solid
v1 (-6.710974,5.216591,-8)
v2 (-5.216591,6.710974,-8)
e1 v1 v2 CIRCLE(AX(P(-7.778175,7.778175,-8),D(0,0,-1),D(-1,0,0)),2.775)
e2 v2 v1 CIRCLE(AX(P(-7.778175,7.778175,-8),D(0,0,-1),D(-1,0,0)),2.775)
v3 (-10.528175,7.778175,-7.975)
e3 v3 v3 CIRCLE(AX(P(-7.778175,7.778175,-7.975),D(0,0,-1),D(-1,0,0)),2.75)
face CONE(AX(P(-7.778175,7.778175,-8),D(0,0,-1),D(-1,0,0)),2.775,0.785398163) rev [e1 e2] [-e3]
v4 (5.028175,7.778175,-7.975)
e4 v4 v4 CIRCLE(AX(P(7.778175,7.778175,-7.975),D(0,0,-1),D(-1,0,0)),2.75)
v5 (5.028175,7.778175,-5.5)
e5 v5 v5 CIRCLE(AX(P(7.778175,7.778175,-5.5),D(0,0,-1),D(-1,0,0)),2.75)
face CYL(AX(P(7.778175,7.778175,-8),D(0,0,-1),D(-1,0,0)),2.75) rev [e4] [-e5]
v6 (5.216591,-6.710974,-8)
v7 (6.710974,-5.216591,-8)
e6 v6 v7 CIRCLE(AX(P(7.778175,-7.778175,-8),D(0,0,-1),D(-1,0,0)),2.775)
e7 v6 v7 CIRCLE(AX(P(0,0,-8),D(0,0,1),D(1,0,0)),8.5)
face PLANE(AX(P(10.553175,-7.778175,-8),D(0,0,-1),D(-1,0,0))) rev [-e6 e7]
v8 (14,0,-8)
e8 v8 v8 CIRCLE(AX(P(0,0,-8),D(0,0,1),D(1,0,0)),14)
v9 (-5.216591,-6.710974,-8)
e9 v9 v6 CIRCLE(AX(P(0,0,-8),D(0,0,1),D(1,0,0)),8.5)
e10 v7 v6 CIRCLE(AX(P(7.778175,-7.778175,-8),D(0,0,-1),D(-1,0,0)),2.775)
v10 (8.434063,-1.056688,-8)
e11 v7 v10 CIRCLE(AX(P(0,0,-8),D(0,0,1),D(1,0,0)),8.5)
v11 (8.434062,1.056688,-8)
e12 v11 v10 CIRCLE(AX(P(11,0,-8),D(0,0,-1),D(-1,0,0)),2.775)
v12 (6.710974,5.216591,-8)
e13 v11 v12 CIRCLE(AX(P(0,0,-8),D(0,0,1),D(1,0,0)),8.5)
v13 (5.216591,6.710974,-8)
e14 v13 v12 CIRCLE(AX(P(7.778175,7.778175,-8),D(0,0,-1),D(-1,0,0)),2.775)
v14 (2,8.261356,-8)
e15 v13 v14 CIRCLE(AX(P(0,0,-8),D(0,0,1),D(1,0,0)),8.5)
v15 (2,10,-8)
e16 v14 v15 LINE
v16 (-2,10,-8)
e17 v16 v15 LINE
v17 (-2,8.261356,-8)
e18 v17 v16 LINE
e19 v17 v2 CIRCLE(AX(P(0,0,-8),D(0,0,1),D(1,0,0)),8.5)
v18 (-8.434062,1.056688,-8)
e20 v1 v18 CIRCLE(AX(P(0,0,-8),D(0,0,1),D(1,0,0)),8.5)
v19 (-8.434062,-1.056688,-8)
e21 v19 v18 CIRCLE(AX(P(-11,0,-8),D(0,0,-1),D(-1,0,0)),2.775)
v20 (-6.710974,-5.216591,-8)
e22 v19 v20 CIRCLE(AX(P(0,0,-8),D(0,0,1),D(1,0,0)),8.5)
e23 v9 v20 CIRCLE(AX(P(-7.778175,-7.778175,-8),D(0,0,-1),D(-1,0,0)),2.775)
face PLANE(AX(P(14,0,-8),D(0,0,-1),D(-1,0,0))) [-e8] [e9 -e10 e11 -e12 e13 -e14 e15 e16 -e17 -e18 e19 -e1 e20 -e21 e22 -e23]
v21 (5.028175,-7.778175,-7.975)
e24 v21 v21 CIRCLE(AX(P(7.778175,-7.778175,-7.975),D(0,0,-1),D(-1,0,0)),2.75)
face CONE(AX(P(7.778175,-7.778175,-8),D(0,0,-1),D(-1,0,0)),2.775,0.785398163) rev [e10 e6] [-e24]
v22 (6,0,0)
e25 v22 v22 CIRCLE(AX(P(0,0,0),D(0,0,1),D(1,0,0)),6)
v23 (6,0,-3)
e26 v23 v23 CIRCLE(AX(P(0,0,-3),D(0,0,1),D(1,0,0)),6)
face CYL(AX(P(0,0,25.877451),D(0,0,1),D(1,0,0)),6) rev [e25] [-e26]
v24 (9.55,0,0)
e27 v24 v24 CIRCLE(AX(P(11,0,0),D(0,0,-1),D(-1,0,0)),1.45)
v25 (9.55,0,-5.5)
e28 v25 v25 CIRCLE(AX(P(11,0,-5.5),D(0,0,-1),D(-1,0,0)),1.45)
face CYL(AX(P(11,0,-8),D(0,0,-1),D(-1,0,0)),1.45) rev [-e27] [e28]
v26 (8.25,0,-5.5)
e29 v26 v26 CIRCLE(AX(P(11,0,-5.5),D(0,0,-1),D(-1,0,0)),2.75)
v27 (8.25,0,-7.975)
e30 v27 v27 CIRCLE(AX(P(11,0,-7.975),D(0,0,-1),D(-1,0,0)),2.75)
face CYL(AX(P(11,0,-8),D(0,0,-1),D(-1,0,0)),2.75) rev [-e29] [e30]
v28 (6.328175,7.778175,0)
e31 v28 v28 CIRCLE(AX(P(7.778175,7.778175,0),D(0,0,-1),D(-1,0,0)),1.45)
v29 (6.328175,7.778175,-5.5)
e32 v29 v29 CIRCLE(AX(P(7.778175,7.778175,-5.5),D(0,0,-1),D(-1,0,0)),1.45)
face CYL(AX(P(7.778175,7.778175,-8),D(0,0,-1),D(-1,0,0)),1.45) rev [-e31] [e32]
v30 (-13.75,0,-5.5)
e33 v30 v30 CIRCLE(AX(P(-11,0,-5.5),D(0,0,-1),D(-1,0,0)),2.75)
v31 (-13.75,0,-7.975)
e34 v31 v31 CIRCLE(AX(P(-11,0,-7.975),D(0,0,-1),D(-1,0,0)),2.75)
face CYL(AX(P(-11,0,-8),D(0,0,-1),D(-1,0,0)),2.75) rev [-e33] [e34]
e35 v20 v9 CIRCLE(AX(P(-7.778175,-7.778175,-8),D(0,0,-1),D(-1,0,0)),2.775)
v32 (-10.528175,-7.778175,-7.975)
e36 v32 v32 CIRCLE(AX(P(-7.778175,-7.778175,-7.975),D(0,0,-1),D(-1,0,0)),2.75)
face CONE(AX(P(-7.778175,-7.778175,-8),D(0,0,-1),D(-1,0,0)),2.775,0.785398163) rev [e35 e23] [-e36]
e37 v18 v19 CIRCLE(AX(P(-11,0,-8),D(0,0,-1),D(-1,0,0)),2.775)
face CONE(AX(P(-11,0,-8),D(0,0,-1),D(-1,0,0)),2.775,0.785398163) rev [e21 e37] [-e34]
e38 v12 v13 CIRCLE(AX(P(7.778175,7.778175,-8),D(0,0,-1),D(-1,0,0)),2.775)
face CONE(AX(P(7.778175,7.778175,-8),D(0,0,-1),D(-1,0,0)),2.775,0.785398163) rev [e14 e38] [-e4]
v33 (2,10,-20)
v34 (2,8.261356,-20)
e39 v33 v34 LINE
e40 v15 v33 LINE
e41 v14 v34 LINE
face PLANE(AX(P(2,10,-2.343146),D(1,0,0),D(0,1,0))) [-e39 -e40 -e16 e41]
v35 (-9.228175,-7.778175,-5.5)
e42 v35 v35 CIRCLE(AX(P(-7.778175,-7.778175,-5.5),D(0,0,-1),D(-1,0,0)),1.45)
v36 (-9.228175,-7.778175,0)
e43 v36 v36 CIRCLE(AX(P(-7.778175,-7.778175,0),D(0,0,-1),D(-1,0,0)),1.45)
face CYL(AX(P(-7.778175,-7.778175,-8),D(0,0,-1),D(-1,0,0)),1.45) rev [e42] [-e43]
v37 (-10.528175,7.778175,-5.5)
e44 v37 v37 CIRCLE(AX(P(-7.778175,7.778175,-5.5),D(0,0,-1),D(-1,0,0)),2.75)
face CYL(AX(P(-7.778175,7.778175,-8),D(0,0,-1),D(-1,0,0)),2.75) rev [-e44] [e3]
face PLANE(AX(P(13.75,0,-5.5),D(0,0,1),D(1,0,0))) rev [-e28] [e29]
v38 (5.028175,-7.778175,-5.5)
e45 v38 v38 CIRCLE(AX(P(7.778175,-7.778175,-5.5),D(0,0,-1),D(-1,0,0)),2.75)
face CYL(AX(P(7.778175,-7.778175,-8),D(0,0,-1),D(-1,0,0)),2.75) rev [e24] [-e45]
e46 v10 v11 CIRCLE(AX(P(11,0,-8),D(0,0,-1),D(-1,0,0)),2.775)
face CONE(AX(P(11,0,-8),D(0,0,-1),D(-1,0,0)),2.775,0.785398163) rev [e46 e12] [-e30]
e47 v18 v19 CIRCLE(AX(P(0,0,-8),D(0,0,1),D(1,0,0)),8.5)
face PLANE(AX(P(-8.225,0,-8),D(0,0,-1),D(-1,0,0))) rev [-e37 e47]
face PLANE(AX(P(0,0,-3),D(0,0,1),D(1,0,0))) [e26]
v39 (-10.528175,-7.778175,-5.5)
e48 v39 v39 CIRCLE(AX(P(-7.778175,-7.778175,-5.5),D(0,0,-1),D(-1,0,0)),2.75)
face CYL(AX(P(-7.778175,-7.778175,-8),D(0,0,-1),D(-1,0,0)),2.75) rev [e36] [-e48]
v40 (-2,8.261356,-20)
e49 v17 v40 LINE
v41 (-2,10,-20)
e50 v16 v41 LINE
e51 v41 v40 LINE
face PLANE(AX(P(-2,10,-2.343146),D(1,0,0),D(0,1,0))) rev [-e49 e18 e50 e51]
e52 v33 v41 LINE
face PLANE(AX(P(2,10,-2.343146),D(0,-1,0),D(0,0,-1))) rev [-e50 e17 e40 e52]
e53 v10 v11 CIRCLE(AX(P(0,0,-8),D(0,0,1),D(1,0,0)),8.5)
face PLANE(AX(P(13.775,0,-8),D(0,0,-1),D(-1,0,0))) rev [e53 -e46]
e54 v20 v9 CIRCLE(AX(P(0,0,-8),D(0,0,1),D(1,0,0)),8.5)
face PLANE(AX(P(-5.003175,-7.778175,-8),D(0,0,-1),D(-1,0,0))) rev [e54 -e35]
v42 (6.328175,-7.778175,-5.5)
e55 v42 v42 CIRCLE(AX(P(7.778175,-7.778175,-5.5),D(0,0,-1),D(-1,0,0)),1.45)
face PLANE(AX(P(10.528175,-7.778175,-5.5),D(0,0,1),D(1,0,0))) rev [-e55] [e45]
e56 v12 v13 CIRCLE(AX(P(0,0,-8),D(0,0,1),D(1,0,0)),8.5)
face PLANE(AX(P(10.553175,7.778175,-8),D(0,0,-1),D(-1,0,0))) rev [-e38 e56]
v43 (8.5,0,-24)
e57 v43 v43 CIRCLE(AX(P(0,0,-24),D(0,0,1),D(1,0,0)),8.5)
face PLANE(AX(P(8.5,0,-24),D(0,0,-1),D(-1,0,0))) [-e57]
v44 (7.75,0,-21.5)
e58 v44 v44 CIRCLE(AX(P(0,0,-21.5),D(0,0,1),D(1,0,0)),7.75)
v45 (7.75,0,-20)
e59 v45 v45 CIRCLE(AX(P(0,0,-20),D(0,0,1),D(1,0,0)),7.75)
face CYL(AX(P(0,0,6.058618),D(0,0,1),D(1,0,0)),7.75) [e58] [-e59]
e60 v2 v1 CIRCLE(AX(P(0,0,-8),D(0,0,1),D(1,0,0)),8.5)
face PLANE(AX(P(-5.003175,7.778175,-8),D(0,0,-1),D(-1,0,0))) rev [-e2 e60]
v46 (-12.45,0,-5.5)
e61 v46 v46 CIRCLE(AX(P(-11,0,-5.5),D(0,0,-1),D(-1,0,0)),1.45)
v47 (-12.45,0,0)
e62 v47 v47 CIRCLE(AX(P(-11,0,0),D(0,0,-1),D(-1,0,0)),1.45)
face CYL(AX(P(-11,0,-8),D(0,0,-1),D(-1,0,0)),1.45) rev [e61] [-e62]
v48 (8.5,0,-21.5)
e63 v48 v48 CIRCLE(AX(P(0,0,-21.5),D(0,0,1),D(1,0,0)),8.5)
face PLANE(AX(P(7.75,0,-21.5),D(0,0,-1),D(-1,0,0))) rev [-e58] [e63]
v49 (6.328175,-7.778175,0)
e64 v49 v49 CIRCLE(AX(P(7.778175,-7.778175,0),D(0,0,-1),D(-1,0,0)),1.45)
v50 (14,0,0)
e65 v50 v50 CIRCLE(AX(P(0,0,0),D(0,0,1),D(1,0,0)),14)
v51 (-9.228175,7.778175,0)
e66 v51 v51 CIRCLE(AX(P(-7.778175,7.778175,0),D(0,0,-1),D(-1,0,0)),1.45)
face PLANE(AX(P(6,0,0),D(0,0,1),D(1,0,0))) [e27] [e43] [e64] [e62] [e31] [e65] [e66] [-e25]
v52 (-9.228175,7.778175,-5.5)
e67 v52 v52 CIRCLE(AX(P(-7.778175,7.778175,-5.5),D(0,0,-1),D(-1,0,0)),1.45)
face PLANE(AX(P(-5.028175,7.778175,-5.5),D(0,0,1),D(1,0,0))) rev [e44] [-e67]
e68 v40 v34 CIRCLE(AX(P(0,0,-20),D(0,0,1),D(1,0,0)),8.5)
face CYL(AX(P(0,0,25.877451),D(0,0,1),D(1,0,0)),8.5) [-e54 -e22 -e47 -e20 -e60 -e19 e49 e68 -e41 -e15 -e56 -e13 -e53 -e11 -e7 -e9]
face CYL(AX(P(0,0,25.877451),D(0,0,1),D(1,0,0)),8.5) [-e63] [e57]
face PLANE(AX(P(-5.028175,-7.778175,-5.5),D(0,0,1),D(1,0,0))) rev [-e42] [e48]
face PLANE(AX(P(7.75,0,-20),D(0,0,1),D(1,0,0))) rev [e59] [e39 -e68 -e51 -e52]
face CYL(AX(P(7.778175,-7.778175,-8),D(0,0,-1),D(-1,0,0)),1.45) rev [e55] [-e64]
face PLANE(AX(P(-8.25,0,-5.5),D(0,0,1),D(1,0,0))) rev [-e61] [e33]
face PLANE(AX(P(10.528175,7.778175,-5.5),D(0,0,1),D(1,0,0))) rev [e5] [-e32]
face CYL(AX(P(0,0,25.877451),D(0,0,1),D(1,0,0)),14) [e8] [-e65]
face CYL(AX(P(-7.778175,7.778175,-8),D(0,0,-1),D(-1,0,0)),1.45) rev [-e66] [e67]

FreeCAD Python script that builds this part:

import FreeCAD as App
import Part
import Sketcher
Q = App.Units.Quantity


def add_polygon(sketch, points):
    """Adds a closed chain of lines whose ends are joined by coincident constraints."""
    first, n = sketch.GeometryCount, len(points)
    for a, b in zip(points, points[1:] + points[:1]):
        sketch.addGeometry(Part.LineSegment(App.Vector(*a, 0), App.Vector(*b, 0)), False)
    for i in range(n):
        sketch.addConstraint(Sketcher.Constraint("Coincident", first + i, 2, first + (i + 1) % n, 1))

doc = App.newDocument("Part")
params = doc.addObject("Spreadsheet::Sheet", "Params")
for row, (alias, value) in enumerate([
    ("sketch1_width", "6 mm"),
    ("sketch1_width2", "8 mm"),
    ("sketch1_height", "21 mm"),
    ("sketch1_height2", "3 mm"),
    ("sketch1_width3", "5.5 mm"),
    ("revolution_angle", "360 deg"),
    ("sketch2_height", "8 mm"),
    ("sketch2_width", "1.3 mm"),
    ("sketch2_height2", "5.5 mm"),
    ("sketch2_width2", "1.45 mm"),
    ("groove_angle", "360 deg"),
    ("linearpattern_pitch", "8.419036 mm"),
    ("linearpattern2_pitch", "20.32535 mm"),
    ("linearpattern3_pitch", "22 mm"),
    ("linearpattern4_pitch", "20.32535 mm"),
    ("linearpattern5_pitch", "8.419036 mm"),
    ("sketch3_height", "1.5 mm"),
    ("sketch3_width", "0.75 mm"),
    ("groove2_angle", "360 deg"),
    ("sketch4_width", "4 mm"),
    ("pad1_length", "12 mm"),
], start=1):
    params.set(f"A{row}", alias)
    params.set(f"B{row}", "=" + value)
    params.setAlias(f"B{row}", alias)

body = doc.addObject("PartDesign::Body", "Body")

sketch1 = doc.addObject("Sketcher::SketchObject", "Sketch")
body.addObject(sketch1)
sketch1.AttachmentSupport = (doc.XZ_Plane, [""])
sketch1.MapMode = "FlatFace"
add_polygon(sketch1, [(0, -24), (0, -3), (6, -3), (6, 0), (14, 0), (14, -8), (8.5, -8), (8.5, -24)])
sketch1.addConstraint(Sketcher.Constraint("Vertical", 0))
sketch1.addConstraint(Sketcher.Constraint("Horizontal", 1))
sketch1.addConstraint(Sketcher.Constraint("Vertical", 2))
sketch1.addConstraint(Sketcher.Constraint("Horizontal", 3))
sketch1.addConstraint(Sketcher.Constraint("Vertical", 4))
sketch1.addConstraint(Sketcher.Constraint("Horizontal", 5))
sketch1.addConstraint(Sketcher.Constraint("Vertical", 6))
sketch1.addConstraint(Sketcher.Constraint("Horizontal", 7))
sketch1.addConstraint(Sketcher.Constraint("PointOnObject", 0, 2, -2))
sketch1.addConstraint(Sketcher.Constraint("PointOnObject", 2, 2, -1))
sketch1.addConstraint(Sketcher.Constraint("Equal", 3, 4))
sketch1.addConstraint(Sketcher.Constraint("DistanceX", 1, 1, 1, 2, 6.0))
sketch1.addConstraint(Sketcher.Constraint("DistanceX", 3, 1, 3, 2, 8.0))
sketch1.addConstraint(Sketcher.Constraint("DistanceY", 0, 1, 0, 2, 21.0))
sketch1.addConstraint(Sketcher.Constraint("DistanceY", 2, 1, 2, 2, 3.0))
sketch1.addConstraint(Sketcher.Constraint("DistanceX", 5, 2, 5, 1, 5.5))
sketch1.setExpression("Constraints[19]", "Params.sketch1_width")
sketch1.setExpression("Constraints[20]", "Params.sketch1_width2")
sketch1.setExpression("Constraints[21]", "Params.sketch1_height")
sketch1.setExpression("Constraints[22]", "Params.sketch1_height2")
sketch1.setExpression("Constraints[23]", "Params.sketch1_width3")
revolution = doc.addObject("PartDesign::Revolution", "Revolution")
body.addObject(revolution)
revolution.Profile = sketch1
revolution.ReferenceAxis = (sketch1, ["V_Axis"])
revolution.setExpression("Angle", "Params.revolution_angle")

sketch2 = doc.addObject("Sketcher::SketchObject", "Sketch001")
body.addObject(sketch2)
sketch2.AttachmentSupport = (doc.YZ_Plane, [""])
sketch2.MapMode = "FlatFace"
sketch2.AttachmentOffset = App.Placement(App.Vector(0, 0, -11), App.Rotation())
add_polygon(sketch2, [(0, 0), (0, -8), (2.775, -8), (2.75, -7.975), (2.75, -5.5), (1.45, -5.5), (1.45, 0)])
sketch2.addConstraint(Sketcher.Constraint("Vertical", 0))
sketch2.addConstraint(Sketcher.Constraint("Horizontal", 1))
sketch2.addConstraint(Sketcher.Constraint("Vertical", 3))
sketch2.addConstraint(Sketcher.Constraint("Horizontal", 4))
sketch2.addConstraint(Sketcher.Constraint("Vertical", 5))
sketch2.addConstraint(Sketcher.Constraint("Horizontal", 6))
sketch2.addConstraint(Sketcher.Constraint("Coincident", 6, 2, -1, 1))
sketch2.addConstraint(Sketcher.Constraint("DistanceY", 0, 2, 0, 1, 8.0))
sketch2.addConstraint(Sketcher.Constraint("Angle", 2, Q("135 deg")))
sketch2.addConstraint(Sketcher.Constraint("DistanceX", 4, 2, 4, 1, 1.3))
sketch2.addConstraint(Sketcher.Constraint("DistanceY", 5, 1, 5, 2, 5.5))
sketch2.addConstraint(Sketcher.Constraint("DistanceX", 6, 2, 6, 1, 1.45))
sketch2.addConstraint(Sketcher.Constraint("DistanceX", 1, 1, 1, 2, 2.775))
sketch2.setExpression("Constraints[14]", "Params.sketch2_height")
sketch2.setExpression("Constraints[16]", "Params.sketch2_width")
sketch2.setExpression("Constraints[17]", "Params.sketch2_height2")
sketch2.setExpression("Constraints[18]", "Params.sketch2_width2")
groove = doc.addObject("PartDesign::Groove", "Groove")
body.addObject(groove)
groove.Profile = sketch2
groove.ReferenceAxis = (sketch2, ["V_Axis"])
groove.setExpression("Angle", "Params.groove_angle")
doc.recompute()

datumline = doc.addObject("PartDesign::Line", "DatumLine")
body.addObject(datumline)
datumline.Placement = App.Placement(App.Vector(0, 0, 0), App.Rotation(App.Vector(0, 0, 1), App.Vector(0.382683432, 0.923879533, 0)))
linearpattern = doc.addObject("PartDesign::LinearPattern", "LinearPattern")
body.addObject(linearpattern)
linearpattern.Originals = [groove]
linearpattern.Direction = (datumline, [""])
linearpattern.Mode = "offset"
linearpattern.setExpression("Offset", "Params.linearpattern_pitch")
linearpattern.Occurrences = 2
body.Tip = linearpattern
doc.recompute()

datumline2 = doc.addObject("PartDesign::Line", "DatumLine001")
body.addObject(datumline2)
datumline2.Placement = App.Placement(App.Vector(0, 0, 0), App.Rotation(App.Vector(0, 0, 1), App.Vector(0.923879533, 0.382683432, 0)))
linearpattern2 = doc.addObject("PartDesign::LinearPattern", "LinearPattern001")
body.addObject(linearpattern2)
linearpattern2.Originals = [groove]
linearpattern2.Direction = (datumline2, [""])
linearpattern2.Mode = "offset"
linearpattern2.setExpression("Offset", "Params.linearpattern2_pitch")
linearpattern2.Occurrences = 2
body.Tip = linearpattern2
doc.recompute()

linearpattern3 = doc.addObject("PartDesign::LinearPattern", "LinearPattern002")
body.addObject(linearpattern3)
linearpattern3.Originals = [groove]
linearpattern3.Direction = (doc.X_Axis, [""])
linearpattern3.Mode = "offset"
linearpattern3.setExpression("Offset", "Params.linearpattern3_pitch")
linearpattern3.Occurrences = 2
body.Tip = linearpattern3
doc.recompute()

datumline3 = doc.addObject("PartDesign::Line", "DatumLine002")
body.addObject(datumline3)
datumline3.Placement = App.Placement(App.Vector(0, 0, 0), App.Rotation(App.Vector(0, 0, 1), App.Vector(0.923879533, -0.382683432, 0)))
linearpattern4 = doc.addObject("PartDesign::LinearPattern", "LinearPattern003")
body.addObject(linearpattern4)
linearpattern4.Originals = [groove]
linearpattern4.Direction = (datumline3, [""])
linearpattern4.Mode = "offset"
linearpattern4.setExpression("Offset", "Params.linearpattern4_pitch")
linearpattern4.Occurrences = 2
body.Tip = linearpattern4
doc.recompute()

datumline4 = doc.addObject("PartDesign::Line", "DatumLine003")
body.addObject(datumline4)
datumline4.Placement = App.Placement(App.Vector(0, 0, 0), App.Rotation(App.Vector(0, 0, 1), App.Vector(0.382683432, -0.923879533, 0)))
linearpattern5 = doc.addObject("PartDesign::LinearPattern", "LinearPattern004")
body.addObject(linearpattern5)
linearpattern5.Originals = [groove]
linearpattern5.Direction = (datumline4, [""])
linearpattern5.Mode = "offset"
linearpattern5.setExpression("Offset", "Params.linearpattern5_pitch")
linearpattern5.Occurrences = 2
body.Tip = linearpattern5

sketch3 = doc.addObject("Sketcher::SketchObject", "Sketch002")
body.addObject(sketch3)
sketch3.AttachmentSupport = (doc.XZ_Plane, [""])
sketch3.MapMode = "FlatFace"
add_polygon(sketch3, [(7.8, -21.5), (7.8, -20), (8.5, -20), (8.5, -21.5)])
sketch3.addConstraint(Sketcher.Constraint("Vertical", 0))
sketch3.addConstraint(Sketcher.Constraint("Horizontal", 1))
sketch3.addConstraint(Sketcher.Constraint("Vertical", 2))
sketch3.addConstraint(Sketcher.Constraint("Horizontal", 3))
sketch3.addConstraint(Sketcher.Constraint("DistanceY", 0, 1, 0, 2, 1.5))
sketch3.addConstraint(Sketcher.Constraint("DistanceY", 0, 2, -1, 1, 20.0))
sketch3.addConstraint(Sketcher.Constraint("DistanceX", 1, 1, 1, 2, 0.75))
sketch3.addConstraint(Sketcher.Constraint("DistanceX", -1, 1, 1, 2, 8.5))
sketch3.setExpression("Constraints[8]", "Params.sketch3_height")
sketch3.setExpression("Constraints[10]", "Params.sketch3_width")
groove2 = doc.addObject("PartDesign::Groove", "Groove001")
body.addObject(groove2)
groove2.Profile = sketch3
groove2.ReferenceAxis = (sketch3, ["V_Axis"])
groove2.setExpression("Angle", "Params.groove2_angle")

sketch4 = doc.addObject("Sketcher::SketchObject", "Sketch003")
body.addObject(sketch4)
sketch4.AttachmentSupport = (doc.XY_Plane, [""])
sketch4.MapMode = "FlatFace"
sketch4.AttachmentOffset = App.Placement(App.Vector(0, 0, -20), App.Rotation())
add_polygon(sketch4, [(-2, 10), (-2, 6), (2, 6), (2, 10)])
sketch4.addConstraint(Sketcher.Constraint("Vertical", 0))
sketch4.addConstraint(Sketcher.Constraint("Horizontal", 1))
sketch4.addConstraint(Sketcher.Constraint("Vertical", 2))
sketch4.addConstraint(Sketcher.Constraint("Horizontal", 3))
sketch4.addConstraint(Sketcher.Constraint("Equal", 3, 0))
sketch4.addConstraint(Sketcher.Constraint("DistanceX", 1, 1, 1, 2, 4.0))
sketch4.addConstraint(Sketcher.Constraint("DistanceX", 0, 2, -1, 1, 2.0))
sketch4.addConstraint(Sketcher.Constraint("DistanceY", -1, 1, 0, 2, 6.0))
sketch4.setExpression("Constraints[9]", "Params.sketch4_width")
pad1 = doc.addObject("PartDesign::Pad", "Pad")
body.addObject(pad1)
pad1.Profile = sketch4
pad1.setExpression("Length", "Params.pad1_length")

doc.recompute()
